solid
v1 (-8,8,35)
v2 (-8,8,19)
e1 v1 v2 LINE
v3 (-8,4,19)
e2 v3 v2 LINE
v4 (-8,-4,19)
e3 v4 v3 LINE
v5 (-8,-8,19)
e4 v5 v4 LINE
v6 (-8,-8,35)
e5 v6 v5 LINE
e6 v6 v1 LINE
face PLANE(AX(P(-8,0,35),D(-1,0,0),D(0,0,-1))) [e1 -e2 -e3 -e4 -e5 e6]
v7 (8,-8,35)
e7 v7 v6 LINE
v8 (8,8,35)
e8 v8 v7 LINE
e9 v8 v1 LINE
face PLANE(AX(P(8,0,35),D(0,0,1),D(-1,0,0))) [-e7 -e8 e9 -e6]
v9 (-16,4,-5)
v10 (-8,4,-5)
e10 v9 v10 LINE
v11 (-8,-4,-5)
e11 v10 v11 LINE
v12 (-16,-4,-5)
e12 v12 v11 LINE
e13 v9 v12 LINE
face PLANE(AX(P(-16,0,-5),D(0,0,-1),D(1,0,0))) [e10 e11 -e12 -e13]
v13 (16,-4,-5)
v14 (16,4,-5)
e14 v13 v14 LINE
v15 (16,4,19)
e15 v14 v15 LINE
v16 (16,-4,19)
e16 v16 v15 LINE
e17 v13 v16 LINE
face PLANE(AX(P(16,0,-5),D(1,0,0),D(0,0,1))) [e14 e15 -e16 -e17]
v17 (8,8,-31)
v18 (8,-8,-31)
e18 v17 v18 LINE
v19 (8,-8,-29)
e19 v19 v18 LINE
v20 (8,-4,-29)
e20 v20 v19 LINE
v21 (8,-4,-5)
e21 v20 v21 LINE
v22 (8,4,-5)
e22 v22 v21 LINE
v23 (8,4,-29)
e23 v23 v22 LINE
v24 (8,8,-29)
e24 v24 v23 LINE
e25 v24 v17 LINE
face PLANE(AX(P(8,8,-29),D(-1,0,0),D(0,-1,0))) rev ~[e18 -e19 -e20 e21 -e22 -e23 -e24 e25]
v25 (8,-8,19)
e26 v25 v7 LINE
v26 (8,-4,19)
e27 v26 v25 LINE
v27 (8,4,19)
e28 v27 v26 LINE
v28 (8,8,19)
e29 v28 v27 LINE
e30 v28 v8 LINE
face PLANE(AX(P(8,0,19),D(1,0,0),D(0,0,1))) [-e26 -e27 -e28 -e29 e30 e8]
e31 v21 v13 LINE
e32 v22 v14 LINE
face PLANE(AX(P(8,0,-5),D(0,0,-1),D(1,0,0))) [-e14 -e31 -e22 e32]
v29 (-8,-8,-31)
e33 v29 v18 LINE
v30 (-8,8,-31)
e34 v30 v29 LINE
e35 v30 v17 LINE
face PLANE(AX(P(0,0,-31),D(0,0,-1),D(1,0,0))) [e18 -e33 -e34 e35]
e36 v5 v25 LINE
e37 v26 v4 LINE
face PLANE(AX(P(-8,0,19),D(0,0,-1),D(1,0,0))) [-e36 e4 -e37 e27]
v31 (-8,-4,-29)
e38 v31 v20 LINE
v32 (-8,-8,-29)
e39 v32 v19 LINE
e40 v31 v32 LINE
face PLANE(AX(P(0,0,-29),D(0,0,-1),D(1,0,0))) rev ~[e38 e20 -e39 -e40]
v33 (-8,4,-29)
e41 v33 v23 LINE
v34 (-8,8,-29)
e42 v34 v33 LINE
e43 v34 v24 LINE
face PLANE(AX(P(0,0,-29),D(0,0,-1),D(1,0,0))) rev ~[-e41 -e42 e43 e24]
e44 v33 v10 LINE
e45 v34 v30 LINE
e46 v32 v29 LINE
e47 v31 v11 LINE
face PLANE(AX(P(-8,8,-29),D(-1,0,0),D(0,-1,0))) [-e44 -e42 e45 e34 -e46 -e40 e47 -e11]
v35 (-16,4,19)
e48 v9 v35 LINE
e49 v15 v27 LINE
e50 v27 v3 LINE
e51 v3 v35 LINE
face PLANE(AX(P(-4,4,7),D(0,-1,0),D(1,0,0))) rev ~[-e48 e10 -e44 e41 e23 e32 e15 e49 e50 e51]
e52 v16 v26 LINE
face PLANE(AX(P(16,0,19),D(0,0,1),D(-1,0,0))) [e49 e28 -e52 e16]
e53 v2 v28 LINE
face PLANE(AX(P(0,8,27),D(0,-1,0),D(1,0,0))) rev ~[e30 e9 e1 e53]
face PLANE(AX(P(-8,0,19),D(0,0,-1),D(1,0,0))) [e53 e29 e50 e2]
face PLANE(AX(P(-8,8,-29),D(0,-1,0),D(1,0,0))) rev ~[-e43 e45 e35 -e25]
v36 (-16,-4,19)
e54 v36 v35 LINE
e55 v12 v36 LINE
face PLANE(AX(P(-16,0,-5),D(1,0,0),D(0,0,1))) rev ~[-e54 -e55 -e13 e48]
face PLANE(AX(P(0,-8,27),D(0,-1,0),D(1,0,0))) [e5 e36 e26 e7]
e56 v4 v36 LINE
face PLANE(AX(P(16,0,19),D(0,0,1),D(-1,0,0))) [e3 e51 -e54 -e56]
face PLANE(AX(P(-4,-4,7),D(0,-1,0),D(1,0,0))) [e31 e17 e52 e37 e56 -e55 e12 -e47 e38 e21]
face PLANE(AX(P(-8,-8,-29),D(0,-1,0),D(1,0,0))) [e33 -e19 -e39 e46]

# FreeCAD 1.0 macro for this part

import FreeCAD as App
import Part
import Sketcher

doc = App.newDocument("Part")
body = doc.addObject("PartDesign::Body", "Body")

# Sketch on XZ plane
sketch1 = body.newObject("Sketcher::SketchObject", "Sketch")
sketch1.AttachmentSupport = (doc.getObject("XZ_Plane"), [""])
sketch1.MapMode = "FlatFace"
sketch1.addGeometry([
    Part.LineSegment(App.Vector(-16, 19, 0), App.Vector(-16, -5, 0)),  # 0
    Part.LineSegment(App.Vector(-16, -5, 0), App.Vector(-8, -5, 0)),  # 1
    Part.LineSegment(App.Vector(-8, -5, 0), App.Vector(-8, -29, 0)),  # 2
    Part.LineSegment(App.Vector(-8, -29, 0), App.Vector(8, -29, 0)),  # 3
    Part.LineSegment(App.Vector(8, -29, 0), App.Vector(8, -5, 0)),  # 4
    Part.LineSegment(App.Vector(8, -5, 0), App.Vector(16, -5, 0)),  # 5
    Part.LineSegment(App.Vector(16, -5, 0), App.Vector(16, 19, 0)),  # 6
    Part.LineSegment(App.Vector(16, 19, 0), App.Vector(-16, 19, 0)),  # 7
], False)
sketch1.addConstraint([
    Sketcher.Constraint("Coincident", 0, 2, 1, 1),
    Sketcher.Constraint("Coincident", 1, 2, 2, 1),
    Sketcher.Constraint("Coincident", 2, 2, 3, 1),
    Sketcher.Constraint("Coincident", 3, 2, 4, 1),
    Sketcher.Constraint("Coincident", 4, 2, 5, 1),
    Sketcher.Constraint("Coincident", 5, 2, 6, 1),
    Sketcher.Constraint("Coincident", 6, 2, 7, 1),
    Sketcher.Constraint("Coincident", 7, 2, 0, 1),
    Sketcher.Constraint("Vertical", 0),
    Sketcher.Constraint("Horizontal", 1),
    Sketcher.Constraint("Vertical", 2),
    Sketcher.Constraint("Horizontal", 3),
    Sketcher.Constraint("Vertical", 4),
    Sketcher.Constraint("Horizontal", 5),
    Sketcher.Constraint("Vertical", 6),
    Sketcher.Constraint("Horizontal", 7),
    Sketcher.Constraint("Symmetric", 1, 2, 4, 2, -2),
    Sketcher.Constraint("Equal", 1, 5),
    Sketcher.Constraint("Equal", 0, 2),
    Sketcher.Constraint("DistanceX", 1, 1, 1, 2, 8.0),
    Sketcher.Constraint("DistanceX", 3, 1, 3, 2, 16.0),
    Sketcher.Constraint("DistanceY", 0, 2, 0, 1, 24.0),
    Sketcher.Constraint("DistanceY", 0, 2, -1, 1, 5.0),
])
pad1 = body.newObject("PartDesign::Pad", "Pad")
pad1.Profile = sketch1
pad1.Length = 8
pad1.Midplane = True

# Sketch on XZ plane
sketch2 = body.newObject("Sketcher::SketchObject", "Sketch001")
sketch2.AttachmentSupport = (doc.getObject("XZ_Plane"), [""])
sketch2.MapMode = "FlatFace"
sketch2.addGeometry([
    Part.LineSegment(App.Vector(-8, 19, 0), App.Vector(8, 19, 0)),
    Part.LineSegment(App.Vector(8, 19, 0), App.Vector(8, 35, 0)),
    Part.LineSegment(App.Vector(8, 35, 0), App.Vector(-8, 35, 0)),
    Part.LineSegment(App.Vector(-8, 35, 0), App.Vector(-8, 19, 0)),
], False)
sketch2.addConstraint([
    Sketcher.Constraint("Coincident", 0, 2, 1, 1),
    Sketcher.Constraint("Coincident", 1, 2, 2, 1),
    Sketcher.Constraint("Coincident", 2, 2, 3, 1),
    Sketcher.Constraint("Coincident", 3, 2, 0, 1),
    Sketcher.Constraint("Horizontal", 0),
    Sketcher.Constraint("Vertical", 1),
    Sketcher.Constraint("Horizontal", 2),
    Sketcher.Constraint("Vertical", 3),
    Sketcher.Constraint("Equal", 2, 1),
    Sketcher.Constraint("DistanceX", 0, 1, 0, 2, 16.0),
    Sketcher.Constraint("DistanceX", -1, 1, 0, 2, 8.0),
    Sketcher.Constraint("DistanceY", -1, 1, 0, 2, 19.0),
])
pad2 = body.newObject("PartDesign::Pad", "Pad001")
pad2.Profile = sketch2
pad2.Length = 16
pad2.Midplane = True

# Sketch on XY plane
sketch3 = body.newObject("Sketcher::SketchObject", "Sketch002")
sketch3.AttachmentSupport = (doc.getObject("XY_Plane"), [""])
sketch3.MapMode = "FlatFace"
sketch3.AttachmentOffset = App.Placement(App.Vector(0, 0, -29), App.Rotation())
sketch3.addGeometry([
    Part.LineSegment(App.Vector(-8, -8, 0), App.Vector(-8, 8, 0)),
    Part.LineSegment(App.Vector(-8, 8, 0), App.Vector(8, 8, 0)),
    Part.LineSegment(App.Vector(8, 8, 0), App.Vector(8, -8, 0)),
    Part.LineSegment(App.Vector(8, -8, 0), App.Vector(-8, -8, 0)),
], False)
sketch3.addConstraint([
    Sketcher.Constraint("Coincident", 0, 2, 1, 1),
    Sketcher.Constraint("Coincident", 1, 2, 2, 1),
    Sketcher.Constraint("Coincident", 2, 2, 3, 1),
    Sketcher.Constraint("Coincident", 3, 2, 0, 1),
    Sketcher.Constraint("Vertical", 0),
    Sketcher.Constraint("Horizontal", 1),
    Sketcher.Constraint("Vertical", 2),
    Sketcher.Constraint("Horizontal", 3),
    Sketcher.Constraint("Symmetric", 0, 2, 2, 2, -1, 1),
    Sketcher.Constraint("Equal", 3, 0),
    Sketcher.Constraint("DistanceX", 1, 1, 1, 2, 16.0),
])
pad3 = body.newObject("PartDesign::Pad", "Pad002")
pad3.Profile = sketch3
pad3.Length = 2
pad3.Reversed = True

doc.recompute()
